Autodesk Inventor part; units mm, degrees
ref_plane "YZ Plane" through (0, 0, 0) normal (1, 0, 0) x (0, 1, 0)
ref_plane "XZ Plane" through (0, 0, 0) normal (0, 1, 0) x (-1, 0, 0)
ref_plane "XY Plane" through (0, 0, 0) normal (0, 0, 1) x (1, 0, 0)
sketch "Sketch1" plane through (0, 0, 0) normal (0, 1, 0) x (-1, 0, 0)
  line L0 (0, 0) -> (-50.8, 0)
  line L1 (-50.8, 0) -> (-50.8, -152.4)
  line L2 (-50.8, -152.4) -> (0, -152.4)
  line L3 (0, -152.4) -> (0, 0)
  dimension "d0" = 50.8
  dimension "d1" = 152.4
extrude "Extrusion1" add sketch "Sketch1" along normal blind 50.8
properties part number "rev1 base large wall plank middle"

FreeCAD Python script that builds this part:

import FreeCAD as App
import Part
import Sketcher
from FreeCAD import Vector
Q = App.Units.Quantity


def add_polygon(sketch, points):
    """Adds a closed chain of lines whose ends are joined by coincident constraints."""
    first, n = sketch.GeometryCount, len(points)
    for a, b in zip(points, points[1:] + points[:1]):
        sketch.addGeometry(Part.LineSegment(App.Vector(*a, 0), App.Vector(*b, 0)), False)
    for i in range(n):
        sketch.addConstraint(Sketcher.Constraint("Coincident", first + i, 2, first + (i + 1) % n, 1))

doc = App.newDocument("Part")
params = doc.addObject("Spreadsheet::Sheet", "Params")
for row, (alias, value) in enumerate([
    ("sketch1_width", "2 in"),
    ("sketch1_height", "6 in"),
    ("pad1_length", "2 in"),
], start=1):
    params.set(f"A{row}", alias)
    params.set(f"B{row}", "=" + value)
    params.setAlias(f"B{row}", alias)

body = doc.addObject("PartDesign::Body", "Body")

sketch1 = body.newObject("Sketcher::SketchObject", "Sketch")
sketch1.AttachmentSupport = (doc.getObject("XZ_Plane"), [""])
sketch1.MapMode = "FlatFace"
add_polygon(sketch1, [(0, -152), (0, 0), (51, 0), (51, -152)])
sketch1.addConstraint([
    Sketcher.Constraint("Vertical", 0),
    Sketcher.Constraint("Horizontal", 1),
    Sketcher.Constraint("Vertical", 2),
    Sketcher.Constraint("Horizontal", 3),
    Sketcher.Constraint("Coincident", 0, 2, -1, 1),
    Sketcher.Constraint("DistanceX", 1, 1, 1, 2, Q("2 in")),
    Sketcher.Constraint("DistanceY", 0, 1, 0, 2, Q("6 in")),
])
sketch1.setExpression("Constraints[9]", "Params.sketch1_width")
sketch1.setExpression("Constraints[10]", "Params.sketch1_height")
pad1 = body.newObject("PartDesign::Pad", "Pad")
pad1.Profile = sketch1
pad1.setExpression("Length", "Params.pad1_length")
pad1.Reversed = True

doc.recompute()
